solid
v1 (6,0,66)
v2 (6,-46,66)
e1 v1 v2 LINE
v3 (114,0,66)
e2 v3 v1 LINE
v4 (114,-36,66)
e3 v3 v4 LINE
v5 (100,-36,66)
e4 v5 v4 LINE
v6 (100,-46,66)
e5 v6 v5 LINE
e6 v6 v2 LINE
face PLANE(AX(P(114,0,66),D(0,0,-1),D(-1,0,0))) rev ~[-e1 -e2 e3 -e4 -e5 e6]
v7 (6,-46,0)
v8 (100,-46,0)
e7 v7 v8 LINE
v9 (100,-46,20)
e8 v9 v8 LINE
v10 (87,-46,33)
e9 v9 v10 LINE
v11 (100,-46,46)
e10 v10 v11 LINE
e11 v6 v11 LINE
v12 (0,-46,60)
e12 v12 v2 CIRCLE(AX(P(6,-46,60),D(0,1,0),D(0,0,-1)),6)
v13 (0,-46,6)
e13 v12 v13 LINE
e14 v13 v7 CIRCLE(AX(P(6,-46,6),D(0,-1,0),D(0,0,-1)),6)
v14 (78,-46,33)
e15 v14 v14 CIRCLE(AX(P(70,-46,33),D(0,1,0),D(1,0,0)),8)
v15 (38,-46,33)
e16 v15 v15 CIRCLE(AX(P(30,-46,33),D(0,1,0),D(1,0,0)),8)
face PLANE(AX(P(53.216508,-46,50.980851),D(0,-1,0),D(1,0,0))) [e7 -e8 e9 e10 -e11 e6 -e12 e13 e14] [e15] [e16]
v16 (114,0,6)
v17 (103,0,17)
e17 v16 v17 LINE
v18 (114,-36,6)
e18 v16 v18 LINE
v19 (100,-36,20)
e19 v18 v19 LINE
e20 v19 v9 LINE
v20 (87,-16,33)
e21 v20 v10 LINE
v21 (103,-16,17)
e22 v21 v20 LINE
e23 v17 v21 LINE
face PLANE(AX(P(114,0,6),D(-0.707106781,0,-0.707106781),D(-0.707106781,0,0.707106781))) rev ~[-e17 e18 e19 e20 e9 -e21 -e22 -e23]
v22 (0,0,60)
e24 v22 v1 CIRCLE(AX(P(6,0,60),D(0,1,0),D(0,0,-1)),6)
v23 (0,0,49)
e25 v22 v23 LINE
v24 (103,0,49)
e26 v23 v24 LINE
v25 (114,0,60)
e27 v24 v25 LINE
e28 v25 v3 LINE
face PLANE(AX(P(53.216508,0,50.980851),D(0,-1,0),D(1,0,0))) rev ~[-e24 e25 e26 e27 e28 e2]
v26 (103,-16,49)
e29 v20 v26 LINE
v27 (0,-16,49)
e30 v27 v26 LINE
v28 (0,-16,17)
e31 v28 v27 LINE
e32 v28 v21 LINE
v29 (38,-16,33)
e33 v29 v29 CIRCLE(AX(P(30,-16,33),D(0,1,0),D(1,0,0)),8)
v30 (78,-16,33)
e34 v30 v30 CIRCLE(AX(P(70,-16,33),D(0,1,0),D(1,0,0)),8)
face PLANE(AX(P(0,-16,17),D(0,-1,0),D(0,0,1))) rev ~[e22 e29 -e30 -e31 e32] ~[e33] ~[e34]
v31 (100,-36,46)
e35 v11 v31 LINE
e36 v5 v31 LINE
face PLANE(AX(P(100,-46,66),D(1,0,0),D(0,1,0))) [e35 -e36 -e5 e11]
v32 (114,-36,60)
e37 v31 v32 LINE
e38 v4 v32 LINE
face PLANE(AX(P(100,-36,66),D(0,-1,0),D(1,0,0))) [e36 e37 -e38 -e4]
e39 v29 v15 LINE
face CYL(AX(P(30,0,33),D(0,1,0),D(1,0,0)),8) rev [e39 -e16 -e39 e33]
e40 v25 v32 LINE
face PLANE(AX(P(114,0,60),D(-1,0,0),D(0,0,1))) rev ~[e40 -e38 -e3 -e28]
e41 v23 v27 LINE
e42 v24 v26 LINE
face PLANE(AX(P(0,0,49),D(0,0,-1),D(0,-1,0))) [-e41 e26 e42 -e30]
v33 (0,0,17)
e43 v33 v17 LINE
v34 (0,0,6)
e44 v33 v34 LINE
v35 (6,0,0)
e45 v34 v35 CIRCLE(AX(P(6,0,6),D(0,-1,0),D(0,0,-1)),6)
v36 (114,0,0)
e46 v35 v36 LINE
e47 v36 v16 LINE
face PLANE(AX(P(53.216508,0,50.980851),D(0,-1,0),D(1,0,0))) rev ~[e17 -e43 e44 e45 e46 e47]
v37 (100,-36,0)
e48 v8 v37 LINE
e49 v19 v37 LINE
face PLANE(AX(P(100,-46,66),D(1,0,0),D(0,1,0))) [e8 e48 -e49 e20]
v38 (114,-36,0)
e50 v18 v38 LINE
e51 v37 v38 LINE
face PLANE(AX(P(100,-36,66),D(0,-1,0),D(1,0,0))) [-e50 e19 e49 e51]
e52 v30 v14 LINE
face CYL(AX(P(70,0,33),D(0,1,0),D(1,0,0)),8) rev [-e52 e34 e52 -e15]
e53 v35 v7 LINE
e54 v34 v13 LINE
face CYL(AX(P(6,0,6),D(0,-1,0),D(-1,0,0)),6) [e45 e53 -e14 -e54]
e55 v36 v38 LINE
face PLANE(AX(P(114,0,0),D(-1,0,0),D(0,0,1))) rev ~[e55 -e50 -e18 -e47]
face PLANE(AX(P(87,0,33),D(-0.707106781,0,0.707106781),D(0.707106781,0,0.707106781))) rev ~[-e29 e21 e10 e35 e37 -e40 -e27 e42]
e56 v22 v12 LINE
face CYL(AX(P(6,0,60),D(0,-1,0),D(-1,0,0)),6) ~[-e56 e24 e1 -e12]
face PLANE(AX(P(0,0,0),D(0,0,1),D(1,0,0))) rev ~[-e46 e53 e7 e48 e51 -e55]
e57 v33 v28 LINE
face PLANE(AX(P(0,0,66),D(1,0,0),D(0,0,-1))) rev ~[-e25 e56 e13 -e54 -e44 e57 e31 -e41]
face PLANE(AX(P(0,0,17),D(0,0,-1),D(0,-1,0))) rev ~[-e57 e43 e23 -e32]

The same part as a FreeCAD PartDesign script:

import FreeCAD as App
import Part
import Sketcher
from FreeCAD import Vector
Q = App.Units.Quantity


def edges_at(feature, points):
    """Names of the edges that pass closest to the given points."""
    edges = feature.Shape.Edges
    near = lambda p: min(range(len(edges)), key=lambda i: edges[i].distToShape(Part.Vertex(*p))[0])
    return sorted({f"Edge{near(p) + 1}" for p in points})

doc = App.newDocument("Part")
params = doc.addObject("Spreadsheet::Sheet", "Params")
for row, (alias, value) in enumerate([
    ("sketch1_width", "114 mm"),
    ("sketch1_height", "66 mm"),
    ("sketch1_height2", "6 mm"),
    ("pad1_length", "46 mm"),
    ("sketch2_width", "14 mm"),
    ("sketch2_height", "10 mm"),
    ("sketch3_width", "16 mm"),
    ("sketch3_height", "32 mm"),
    ("sketch4_diameter", "16 mm"),
    ("pad2_length", "25 mm"),
    ("sketch5_diameter", "16 mm"),
    ("fillet_radius", "6 mm"),
], start=1):
    params.set(f"A{row}", alias)
    params.set(f"B{row}", "=" + value)
    params.setAlias(f"B{row}", alias)

body = doc.addObject("PartDesign::Body", "Body")

sketch1 = body.newObject("Sketcher::SketchObject", "Sketch")
sketch1.AttachmentSupport = (doc.getObject("XZ_Plane"), [""])
sketch1.MapMode = "FlatFace"
sketch1.addGeometry([
    Part.LineSegment(Vector(0, 66, 0), Vector(0, 0, 0)),
    Part.LineSegment(Vector(0, 0, 0), Vector(114, 0, 0)),
    Part.LineSegment(Vector(114, 0, 0), Vector(114, 6, 0)),
    Part.LineSegment(Vector(114, 6, 0), Vector(87, 33, 0)),
    Part.LineSegment(Vector(87, 33, 0), Vector(114, 60, 0)),
    Part.LineSegment(Vector(114, 60, 0), Vector(114, 66, 0)),
    Part.LineSegment(Vector(114, 66, 0), Vector(0, 66, 0)),
], False)
sketch1.addConstraint([
    Sketcher.Constraint("Coincident", 0, 2, 1, 1),
    Sketcher.Constraint("Coincident", 1, 2, 2, 1),
    Sketcher.Constraint("Coincident", 2, 2, 3, 1),
    Sketcher.Constraint("Coincident", 3, 2, 4, 1),
    Sketcher.Constraint("Coincident", 4, 2, 5, 1),
    Sketcher.Constraint("Coincident", 5, 2, 6, 1),
    Sketcher.Constraint("Coincident", 6, 2, 0, 1),
    Sketcher.Constraint("Vertical", 0),
    Sketcher.Constraint("Horizontal", 1),
    Sketcher.Constraint("Vertical", 2),
    Sketcher.Constraint("Vertical", 5),
    Sketcher.Constraint("Horizontal", 6),
    Sketcher.Constraint("Coincident", 0, 2, -1, 1),
    Sketcher.Constraint("Perpendicular", 3, 4),
    Sketcher.Constraint("Vertical", 2, 2, 4, 2),
    Sketcher.Constraint("Equal", 2, 5),
    Sketcher.Constraint("Equal", 3, 4),
    Sketcher.Constraint("DistanceX", 1, 1, 1, 2, Q("114 mm")),
    Sketcher.Constraint("DistanceY", 0, 2, 0, 1, Q("66 mm")),
    Sketcher.Constraint("DistanceY", 2, 1, 2, 2, Q("6 mm")),
])
sketch1.setExpression("Constraints[17]", "Params.sketch1_width")
sketch1.setExpression("Constraints[18]", "Params.sketch1_height")
sketch1.setExpression("Constraints[19]", "Params.sketch1_height2")
pad1 = body.newObject("PartDesign::Pad", "Pad")
pad1.Profile = sketch1
pad1.setExpression("Length", "Params.pad1_length")

sketch2 = body.newObject("Sketcher::SketchObject", "Sketch001")
sketch2.AttachmentSupport = (doc.getObject("XY_Plane"), [""])
sketch2.MapMode = "FlatFace"
sketch2.AttachmentOffset = App.Placement(Vector(0, 0, 66), App.Rotation())
sketch2.addGeometry([
    Part.LineSegment(Vector(100, -36, 0), Vector(100, -46, 0)),
    Part.LineSegment(Vector(100, -46, 0), Vector(114, -46, 0)),
    Part.LineSegment(Vector(114, -46, 0), Vector(114, -36, 0)),
    Part.LineSegment(Vector(114, -36, 0), Vector(100, -36, 0)),
], False)
sketch2.addConstraint([
    Sketcher.Constraint("Coincident", 0, 2, 1, 1),
    Sketcher.Constraint("Coincident", 1, 2, 2, 1),
    Sketcher.Constraint("Coincident", 2, 2, 3, 1),
    Sketcher.Constraint("Coincident", 3, 2, 0, 1),
    Sketcher.Constraint("Vertical", 0),
    Sketcher.Constraint("Horizontal", 1),
    Sketcher.Constraint("Vertical", 2),
    Sketcher.Constraint("Horizontal", 3),
    Sketcher.Constraint("DistanceX", 1, 1, 1, 2, Q("14 mm")),
    Sketcher.Constraint("DistanceY", 0, 2, 0, 1, Q("10 mm")),
    Sketcher.Constraint("DistanceX", -1, 1, 0, 2, Q("100 mm")),
    Sketcher.Constraint("DistanceY", 0, 2, -1, 1, Q("46 mm")),
])
sketch2.setExpression("Constraints[8]", "Params.sketch2_width")
sketch2.setExpression("Constraints[9]", "Params.sketch2_height")
pocket1 = body.newObject("PartDesign::Pocket", "Pocket")
pocket1.Profile = sketch2
pocket1.Type = "ThroughAll"

sketch3 = body.newObject("Sketcher::SketchObject", "Sketch002")
sketch3.AttachmentSupport = (doc.getObject("YZ_Plane"), [""])
sketch3.MapMode = "FlatFace"
sketch3.addGeometry([
    Part.LineSegment(Vector(0, 49, 0), Vector(0, 17, 0)),
    Part.LineSegment(Vector(0, 17, 0), Vector(-16, 17, 0)),
    Part.LineSegment(Vector(-16, 17, 0), Vector(-16, 49, 0)),
    Part.LineSegment(Vector(-16, 49, 0), Vector(0, 49, 0)),
], False)
sketch3.addConstraint([
    Sketcher.Constraint("Coincident", 0, 2, 1, 1),
    Sketcher.Constraint("Coincident", 1, 2, 2, 1),
    Sketcher.Constraint("Coincident", 2, 2, 3, 1),
    Sketcher.Constraint("Coincident", 3, 2, 0, 1),
    Sketcher.Constraint("Vertical", 0),
    Sketcher.Constraint("Horizontal", 1),
    Sketcher.Constraint("Vertical", 2),
    Sketcher.Constraint("Horizontal", 3),
    Sketcher.Constraint("PointOnObject", 0, 2, -2),
    Sketcher.Constraint("DistanceX", 1, 2, 1, 1, Q("16 mm")),
    Sketcher.Constraint("DistanceY", 0, 2, 0, 1, Q("32 mm")),
    Sketcher.Constraint("DistanceY", -1, 1, 0, 2, Q("17 mm")),
])
sketch3.setExpression("Constraints[9]", "Params.sketch3_width")
sketch3.setExpression("Constraints[10]", "Params.sketch3_height")
pocket2 = body.newObject("PartDesign::Pocket", "Pocket001")
pocket2.Profile = sketch3
pocket2.Type = "ThroughAll"
pocket2.Reversed = True

sketch4 = body.newObject("Sketcher::SketchObject", "Sketch003")
sketch4.AttachmentSupport = (doc.getObject("XZ_Plane"), [""])
sketch4.MapMode = "FlatFace"
sketch4.addGeometry([
    Part.Circle(Vector(30, 33, 0), Vector(0, 0, 1), 8),
    Part.Circle(Vector(70, 33, 0), Vector(0, 0, 1), 8),
], False)
sketch4.addConstraint([
    Sketcher.Constraint("Equal", 0, 1),
    Sketcher.Constraint("Horizontal", 0, 3, 1, 3),
    Sketcher.Constraint("Diameter", 0, Q("16 mm")),
    Sketcher.Constraint("DistanceX", -1, 1, 0, 3, Q("30 mm")),
    Sketcher.Constraint("DistanceY", -1, 1, 0, 3, Q("33 mm")),
    Sketcher.Constraint("DistanceX", -1, 1, 1, 3, Q("70 mm")),
])
sketch4.setExpression("Constraints[2]", "Params.sketch4_diameter")
pad2 = body.newObject("PartDesign::Pad", "Pad001")
pad2.Profile = sketch4
pad2.setExpression("Length", "Params.pad2_length")

sketch5 = body.newObject("Sketcher::SketchObject", "Sketch004")
sketch5.AttachmentSupport = (doc.getObject("XZ_Plane"), [""])
sketch5.MapMode = "FlatFace"
sketch5.addGeometry([
    Part.Circle(Vector(30, 33, 0), Vector(0, 0, 1), 8),
    Part.Circle(Vector(70, 33, 0), Vector(0, 0, 1), 8),
], False)
sketch5.addConstraint([
    Sketcher.Constraint("Equal", 0, 1),
    Sketcher.Constraint("Horizontal", 0, 3, 1, 3),
    Sketcher.Constraint("Diameter", 0, Q("16 mm")),
    Sketcher.Constraint("DistanceX", -1, 1, 0, 3, Q("30 mm")),
    Sketcher.Constraint("DistanceY", -1, 1, 0, 3, Q("33 mm")),
    Sketcher.Constraint("DistanceX", -1, 1, 1, 3, Q("70 mm")),
])
sketch5.setExpression("Constraints[2]", "Params.sketch5_diameter")
pocket3 = body.newObject("PartDesign::Pocket", "Pocket002")
pocket3.Profile = sketch5
pocket3.Type = "ThroughAll"
pocket3.Reversed = True
doc.recompute()

fillet = body.newObject("PartDesign::Fillet", "Fillet")
fillet.Base = (pocket3, edges_at(pocket3, [(0, -23, 66), (0, -23, 0)]))
fillet.setExpression("Radius", "Params.fillet_radius")

doc.recompute()
